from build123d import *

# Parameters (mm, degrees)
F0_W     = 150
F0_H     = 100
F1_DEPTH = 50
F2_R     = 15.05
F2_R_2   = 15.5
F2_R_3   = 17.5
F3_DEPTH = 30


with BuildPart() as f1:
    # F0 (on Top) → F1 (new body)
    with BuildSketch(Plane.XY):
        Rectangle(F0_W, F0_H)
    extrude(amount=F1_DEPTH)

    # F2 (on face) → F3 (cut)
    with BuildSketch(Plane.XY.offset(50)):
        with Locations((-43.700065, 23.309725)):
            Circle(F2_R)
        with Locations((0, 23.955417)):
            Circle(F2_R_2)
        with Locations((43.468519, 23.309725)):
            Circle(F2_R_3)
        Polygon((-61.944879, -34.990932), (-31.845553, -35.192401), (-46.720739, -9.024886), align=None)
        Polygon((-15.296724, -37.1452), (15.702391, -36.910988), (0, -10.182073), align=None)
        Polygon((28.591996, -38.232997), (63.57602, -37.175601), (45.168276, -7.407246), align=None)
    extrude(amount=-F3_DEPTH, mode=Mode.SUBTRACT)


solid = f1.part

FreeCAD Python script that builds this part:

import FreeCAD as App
import Part
import Sketcher

V = App.Vector
Q = App.Units.Quantity

doc = App.newDocument("Part")
body = doc.addObject("PartDesign::Body", "Body")

# Sketch on XY plane
sketch1 = body.newObject("Sketcher::SketchObject", "Sketch")
sketch1.AttachmentSupport = (doc.getObject("XY_Plane"), [""])
sketch1.MapMode = "FlatFace"
sketch1.addGeometry(Part.LineSegment(V(-75, 50, 0), V(-75, -50, 0)), False)
sketch1.addGeometry(Part.LineSegment(V(-75, -50, 0), V(75, -50, 0)), False)
sketch1.addGeometry(Part.LineSegment(V(75, -50, 0), V(75, 50, 0)), False)
sketch1.addGeometry(Part.LineSegment(V(75, 50, 0), V(-75, 50, 0)), False)
sketch1.addConstraint(Sketcher.Constraint("Coincident", 0, 2, 1, 1))
sketch1.addConstraint(Sketcher.Constraint("Coincident", 1, 2, 2, 1))
sketch1.addConstraint(Sketcher.Constraint("Coincident", 2, 2, 3, 1))
sketch1.addConstraint(Sketcher.Constraint("Coincident", 3, 2, 0, 1))
sketch1.addConstraint(Sketcher.Constraint("Vertical", 0))
sketch1.addConstraint(Sketcher.Constraint("Horizontal", 1))
sketch1.addConstraint(Sketcher.Constraint("Vertical", 2))
sketch1.addConstraint(Sketcher.Constraint("Horizontal", 3))
sketch1.addConstraint(Sketcher.Constraint("Symmetric", 0, 2, 2, 2, -1, 1))
sketch1.addConstraint(Sketcher.Constraint("DistanceX", 1, 1, 1, 2, Q("150 mm")))
sketch1.addConstraint(Sketcher.Constraint("DistanceY", 0, 2, 0, 1, Q("100 mm")))
pad1 = body.newObject("PartDesign::Pad", "Pad")
pad1.Profile = sketch1
pad1.Length = 50

# Sketch on XY plane
sketch2 = body.newObject("Sketcher::SketchObject", "Sketch001")
sketch2.AttachmentSupport = (doc.getObject("XY_Plane"), [""])
sketch2.MapMode = "FlatFace"
sketch2.AttachmentOffset = App.Placement(V(0, 0, 50), App.Rotation())
sketch2.addGeometry(Part.Circle(V(-43.700065, 23.309725, 0), V(0, 0, 1), 15.05), False)
sketch2.addGeometry(Part.Circle(V(0, 23.955417, 0), V(0, 0, 1), 15.5), False)
sketch2.addGeometry(Part.Circle(V(43.468519, 23.309725, 0), V(0, 0, 1), 17.5), False)
sketch2.addGeometry(Part.LineSegment(V(-61.944879, -34.990932, 0), V(-31.845553, -35.192401, 0)), False)
sketch2.addGeometry(Part.LineSegment(V(-31.845553, -35.192401, 0), V(-46.720739, -9.024886, 0)), False)
sketch2.addGeometry(Part.LineSegment(V(-46.720739, -9.024886, 0), V(-61.944879, -34.990932, 0)), False)
sketch2.addGeometry(Part.LineSegment(V(-15.296724, -37.1452, 0), V(15.702391, -36.910988, 0)), False)
sketch2.addGeometry(Part.LineSegment(V(15.702391, -36.910988, 0), V(0, -10.182073, 0)), False)
sketch2.addGeometry(Part.LineSegment(V(0, -10.182073, 0), V(-15.296724, -37.1452, 0)), False)
sketch2.addGeometry(Part.LineSegment(V(28.591996, -38.232997, 0), V(63.57602, -37.175601, 0)), False)
sketch2.addGeometry(Part.LineSegment(V(63.57602, -37.175601, 0), V(45.168276, -7.407246, 0)), False)
sketch2.addGeometry(Part.LineSegment(V(45.168276, -7.407246, 0), V(28.591996, -38.232997, 0)), False)
sketch2.addConstraint(Sketcher.Constraint("Coincident", 3, 2, 4, 1))
sketch2.addConstraint(Sketcher.Constraint("Coincident", 4, 2, 5, 1))
sketch2.addConstraint(Sketcher.Constraint("Coincident", 5, 2, 3, 1))
sketch2.addConstraint(Sketcher.Constraint("Coincident", 6, 2, 7, 1))
sketch2.addConstraint(Sketcher.Constraint("Coincident", 7, 2, 8, 1))
sketch2.addConstraint(Sketcher.Constraint("Coincident", 8, 2, 6, 1))
sketch2.addConstraint(Sketcher.Constraint("Coincident", 9, 2, 10, 1))
sketch2.addConstraint(Sketcher.Constraint("Coincident", 10, 2, 11, 1))
sketch2.addConstraint(Sketcher.Constraint("Coincident", 11, 2, 9, 1))
sketch2.addConstraint(Sketcher.Constraint("PointOnObject", 1, 3, -2))
sketch2.addConstraint(Sketcher.Constraint("PointOnObject", 7, 2, -2))
sketch2.addConstraint(Sketcher.Constraint("Horizontal", 0, 3, 2, 3))
sketch2.addConstraint(Sketcher.Constraint("Equal", 3, 4))
sketch2.addConstraint(Sketcher.Constraint("Equal", 4, 5))
sketch2.addConstraint(Sketcher.Constraint("Equal", 6, 7))
sketch2.addConstraint(Sketcher.Constraint("Equal", 7, 8))
sketch2.addConstraint(Sketcher.Constraint("Equal", 9, 10))
sketch2.addConstraint(Sketcher.Constraint("Equal", 10, 11))
sketch2.addConstraint(Sketcher.Constraint("Diameter", 1, Q("31 mm")))
sketch2.addConstraint(Sketcher.Constraint("Diameter", 2, Q("35 mm")))
sketch2.addConstraint(Sketcher.Constraint("Diameter", 0, Q("30.1 mm")))
sketch2.addConstraint(Sketcher.Constraint("Distance", 6, Q("31 mm")))
sketch2.addConstraint(Sketcher.Constraint("Distance", 9, Q("35 mm")))
sketch2.addConstraint(Sketcher.Constraint("Distance", 3, Q("30.1 mm")))
sketch2.addConstraint(Sketcher.Constraint("DistanceY", 3, 2, -1, 1, Q("35.192401 mm")))
sketch2.addConstraint(Sketcher.Constraint("DistanceY", 8, 2, -1, 1, Q("37.1452 mm")))
sketch2.addConstraint(Sketcher.Constraint("DistanceY", 9, 2, -1, 1, Q("37.175601 mm")))
sketch2.addConstraint(Sketcher.Constraint("DistanceX", 5, 2, 2, 3, Q("105.413398 mm")))
sketch2.addConstraint(Sketcher.Constraint("DistanceY", 7, 2, 2, 3, Q("33.491798 mm")))
sketch2.addConstraint(Sketcher.Constraint("DistanceX", 2, 3, 9, 2, Q("20.107501 mm")))
sketch2.addConstraint(Sketcher.Constraint("DistanceX", -1, 1, 2, 3, Q("43.468519 mm")))
sketch2.addConstraint(Sketcher.Constraint("DistanceX", 4, 2, -1, 1, Q("46.720739 mm")))
sketch2.addConstraint(Sketcher.Constraint("DistanceX", -1, 1, 6, 2, Q("15.702391 mm")))
sketch2.addConstraint(Sketcher.Constraint("DistanceY", 5, 2, 1, 3, Q("58.946349 mm")))
sketch2.addConstraint(Sketcher.Constraint("DistanceY", 10, 2, 2, 3, Q("30.716971 mm")))
sketch2.addConstraint(Sketcher.Constraint("DistanceX", 0, 3, -1, 1, Q("43.700065 mm")))
pocket1 = body.newObject("PartDesign::Pocket", "Pocket")
pocket1.Profile = sketch2
pocket1.Length = 30

doc.recompute()
